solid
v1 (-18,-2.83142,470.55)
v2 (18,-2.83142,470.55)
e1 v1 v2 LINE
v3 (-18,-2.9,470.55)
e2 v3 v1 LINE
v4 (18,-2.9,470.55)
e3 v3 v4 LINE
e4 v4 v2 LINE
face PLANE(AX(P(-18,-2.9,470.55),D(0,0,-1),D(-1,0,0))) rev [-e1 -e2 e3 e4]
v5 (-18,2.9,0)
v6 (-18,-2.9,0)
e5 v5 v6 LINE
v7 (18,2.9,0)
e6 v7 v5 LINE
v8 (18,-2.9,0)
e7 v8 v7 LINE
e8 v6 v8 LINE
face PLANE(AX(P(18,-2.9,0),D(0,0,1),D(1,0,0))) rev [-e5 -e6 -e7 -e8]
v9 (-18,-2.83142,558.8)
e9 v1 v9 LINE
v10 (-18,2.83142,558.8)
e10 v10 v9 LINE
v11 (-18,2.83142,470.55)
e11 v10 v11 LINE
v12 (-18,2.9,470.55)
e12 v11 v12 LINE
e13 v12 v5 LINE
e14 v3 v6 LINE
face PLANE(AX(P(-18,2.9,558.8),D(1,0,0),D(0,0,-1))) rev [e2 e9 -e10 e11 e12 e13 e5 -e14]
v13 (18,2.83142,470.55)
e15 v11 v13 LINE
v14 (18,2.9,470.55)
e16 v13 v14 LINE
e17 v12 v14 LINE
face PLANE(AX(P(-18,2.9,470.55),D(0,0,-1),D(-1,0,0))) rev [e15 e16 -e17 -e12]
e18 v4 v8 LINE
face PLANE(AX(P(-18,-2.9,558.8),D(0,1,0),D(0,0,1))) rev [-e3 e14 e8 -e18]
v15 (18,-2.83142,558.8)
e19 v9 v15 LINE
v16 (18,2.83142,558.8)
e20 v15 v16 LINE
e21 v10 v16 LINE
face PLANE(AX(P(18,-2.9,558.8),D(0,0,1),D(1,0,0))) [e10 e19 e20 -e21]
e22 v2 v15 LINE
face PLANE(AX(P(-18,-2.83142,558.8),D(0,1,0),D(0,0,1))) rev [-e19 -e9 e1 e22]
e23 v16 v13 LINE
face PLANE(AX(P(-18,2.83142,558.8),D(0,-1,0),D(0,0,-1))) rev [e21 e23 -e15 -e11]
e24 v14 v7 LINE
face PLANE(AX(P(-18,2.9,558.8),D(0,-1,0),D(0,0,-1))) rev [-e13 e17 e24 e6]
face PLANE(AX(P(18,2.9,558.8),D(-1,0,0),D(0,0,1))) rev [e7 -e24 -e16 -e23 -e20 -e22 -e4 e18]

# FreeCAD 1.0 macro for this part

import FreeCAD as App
import Part
import Sketcher
from FreeCAD import Vector

doc = App.newDocument("Part")
params = doc.addObject("Spreadsheet::Sheet", "Params")
for row, (alias, value) in enumerate([
    ("sketch1_width", "36 mm"),
    ("sketch1_height", "5.8 mm"),
    ("pad1_length", "558.8 mm"),
    ("sketch2_height", "88.25 mm"),
], start=1):
    params.set(f"A{row}", alias)
    params.set(f"B{row}", "=" + value)
    params.setAlias(f"B{row}", alias)

body = doc.addObject("PartDesign::Body", "Body")

# Sketch on XY plane
sketch1 = body.newObject("Sketcher::SketchObject", "Sketch")
sketch1.AttachmentSupport = (doc.getObject("XY_Plane"), [""])
sketch1.MapMode = "FlatFace"
sketch1.addGeometry([
    Part.LineSegment(Vector(-18, 3, 0), Vector(-18, -3, 0)),
    Part.LineSegment(Vector(-18, -3, 0), Vector(18, -3, 0)),
    Part.LineSegment(Vector(18, -3, 0), Vector(18, 3, 0)),
    Part.LineSegment(Vector(18, 3, 0), Vector(-18, 3, 0)),
], False)
sketch1.addConstraint([
    Sketcher.Constraint("Coincident", 0, 2, 1, 1),
    Sketcher.Constraint("Coincident", 1, 2, 2, 1),
    Sketcher.Constraint("Coincident", 2, 2, 3, 1),
    Sketcher.Constraint("Coincident", 3, 2, 0, 1),
    Sketcher.Constraint("Vertical", 0),
    Sketcher.Constraint("Horizontal", 1),
    Sketcher.Constraint("Vertical", 2),
    Sketcher.Constraint("Horizontal", 3),
    Sketcher.Constraint("Symmetric", 0, 2, 2, 2, -1, 1),
    Sketcher.Constraint("DistanceX", 1, 1, 1, 2, 36.0),
    Sketcher.Constraint("DistanceY", 0, 2, 0, 1, 5.8),
])
sketch1.setExpression("Constraints[9]", "Params.sketch1_width")
sketch1.setExpression("Constraints[10]", "Params.sketch1_height")
pad1 = body.newObject("PartDesign::Pad", "Pad")
pad1.Profile = sketch1
pad1.setExpression("Length", "Params.pad1_length")

# Sketch on YZ plane
sketch2 = body.newObject("Sketcher::SketchObject", "Sketch001")
sketch2.AttachmentSupport = (doc.getObject("YZ_Plane"), [""])
sketch2.MapMode = "FlatFace"
sketch2.AttachmentOffset = App.Placement(Vector(0, 0, 18), App.Rotation())
sketch2.addGeometry([
    Part.LineSegment(Vector(-2.83, 558.8, 0), Vector(-2.9, 558.8, 0)),  # 0
    Part.LineSegment(Vector(-2.9, 558.8, 0), Vector(-2.9, 470.55, 0)),  # 1
    Part.LineSegment(Vector(-2.9, 470.55, 0), Vector(-2.83, 470.55, 0)),  # 2
    Part.LineSegment(Vector(-2.83, 470.55, 0), Vector(-2.83, 558.8, 0)),  # 3
    Part.LineSegment(Vector(2.9, 558.8, 0), Vector(2.83, 558.8, 0)),  # 4
    Part.LineSegment(Vector(2.83, 558.8, 0), Vector(2.83, 470.55, 0)),  # 5
    Part.LineSegment(Vector(2.83, 470.55, 0), Vector(2.9, 470.55, 0)),  # 6
    Part.LineSegment(Vector(2.9, 470.55, 0), Vector(2.9, 558.8, 0)),  # 7
], False)
sketch2.addConstraint([
    Sketcher.Constraint("Coincident", 0, 2, 1, 1),
    Sketcher.Constraint("Coincident", 1, 2, 2, 1),
    Sketcher.Constraint("Coincident", 2, 2, 3, 1),
    Sketcher.Constraint("Coincident", 3, 2, 0, 1),
    Sketcher.Constraint("Coincident", 4, 2, 5, 1),
    Sketcher.Constraint("Coincident", 5, 2, 6, 1),
    Sketcher.Constraint("Coincident", 6, 2, 7, 1),
    Sketcher.Constraint("Coincident", 7, 2, 4, 1),
    Sketcher.Constraint("Horizontal", 0),
    Sketcher.Constraint("Vertical", 1),
    Sketcher.Constraint("Horizontal", 2),
    Sketcher.Constraint("Vertical", 3),
    Sketcher.Constraint("Horizontal", 4),
    Sketcher.Constraint("Vertical", 5),
    Sketcher.Constraint("Horizontal", 6),
    Sketcher.Constraint("Vertical", 7),
    Sketcher.Constraint("Symmetric", 3, 2, 4, 2, -2),
    Sketcher.Constraint("Symmetric", 1, 2, 6, 2, -2),
    Sketcher.Constraint("DistanceY", 1, 2, 1, 1, 88.25),
    Sketcher.Constraint("DistanceX", 0, 2, -1, 1, 2.9),
    Sketcher.Constraint("DistanceY", -1, 1, 0, 2, 558.8),
    Sketcher.Constraint("DistanceX", 0, 2, 0, 1, 0.06858),
])
sketch2.setExpression("Constraints[18]", "Params.sketch2_height")
pocket1 = body.newObject("PartDesign::Pocket", "Pocket")
pocket1.Profile = sketch2
pocket1.Type = "ThroughAll"

doc.recompute()
